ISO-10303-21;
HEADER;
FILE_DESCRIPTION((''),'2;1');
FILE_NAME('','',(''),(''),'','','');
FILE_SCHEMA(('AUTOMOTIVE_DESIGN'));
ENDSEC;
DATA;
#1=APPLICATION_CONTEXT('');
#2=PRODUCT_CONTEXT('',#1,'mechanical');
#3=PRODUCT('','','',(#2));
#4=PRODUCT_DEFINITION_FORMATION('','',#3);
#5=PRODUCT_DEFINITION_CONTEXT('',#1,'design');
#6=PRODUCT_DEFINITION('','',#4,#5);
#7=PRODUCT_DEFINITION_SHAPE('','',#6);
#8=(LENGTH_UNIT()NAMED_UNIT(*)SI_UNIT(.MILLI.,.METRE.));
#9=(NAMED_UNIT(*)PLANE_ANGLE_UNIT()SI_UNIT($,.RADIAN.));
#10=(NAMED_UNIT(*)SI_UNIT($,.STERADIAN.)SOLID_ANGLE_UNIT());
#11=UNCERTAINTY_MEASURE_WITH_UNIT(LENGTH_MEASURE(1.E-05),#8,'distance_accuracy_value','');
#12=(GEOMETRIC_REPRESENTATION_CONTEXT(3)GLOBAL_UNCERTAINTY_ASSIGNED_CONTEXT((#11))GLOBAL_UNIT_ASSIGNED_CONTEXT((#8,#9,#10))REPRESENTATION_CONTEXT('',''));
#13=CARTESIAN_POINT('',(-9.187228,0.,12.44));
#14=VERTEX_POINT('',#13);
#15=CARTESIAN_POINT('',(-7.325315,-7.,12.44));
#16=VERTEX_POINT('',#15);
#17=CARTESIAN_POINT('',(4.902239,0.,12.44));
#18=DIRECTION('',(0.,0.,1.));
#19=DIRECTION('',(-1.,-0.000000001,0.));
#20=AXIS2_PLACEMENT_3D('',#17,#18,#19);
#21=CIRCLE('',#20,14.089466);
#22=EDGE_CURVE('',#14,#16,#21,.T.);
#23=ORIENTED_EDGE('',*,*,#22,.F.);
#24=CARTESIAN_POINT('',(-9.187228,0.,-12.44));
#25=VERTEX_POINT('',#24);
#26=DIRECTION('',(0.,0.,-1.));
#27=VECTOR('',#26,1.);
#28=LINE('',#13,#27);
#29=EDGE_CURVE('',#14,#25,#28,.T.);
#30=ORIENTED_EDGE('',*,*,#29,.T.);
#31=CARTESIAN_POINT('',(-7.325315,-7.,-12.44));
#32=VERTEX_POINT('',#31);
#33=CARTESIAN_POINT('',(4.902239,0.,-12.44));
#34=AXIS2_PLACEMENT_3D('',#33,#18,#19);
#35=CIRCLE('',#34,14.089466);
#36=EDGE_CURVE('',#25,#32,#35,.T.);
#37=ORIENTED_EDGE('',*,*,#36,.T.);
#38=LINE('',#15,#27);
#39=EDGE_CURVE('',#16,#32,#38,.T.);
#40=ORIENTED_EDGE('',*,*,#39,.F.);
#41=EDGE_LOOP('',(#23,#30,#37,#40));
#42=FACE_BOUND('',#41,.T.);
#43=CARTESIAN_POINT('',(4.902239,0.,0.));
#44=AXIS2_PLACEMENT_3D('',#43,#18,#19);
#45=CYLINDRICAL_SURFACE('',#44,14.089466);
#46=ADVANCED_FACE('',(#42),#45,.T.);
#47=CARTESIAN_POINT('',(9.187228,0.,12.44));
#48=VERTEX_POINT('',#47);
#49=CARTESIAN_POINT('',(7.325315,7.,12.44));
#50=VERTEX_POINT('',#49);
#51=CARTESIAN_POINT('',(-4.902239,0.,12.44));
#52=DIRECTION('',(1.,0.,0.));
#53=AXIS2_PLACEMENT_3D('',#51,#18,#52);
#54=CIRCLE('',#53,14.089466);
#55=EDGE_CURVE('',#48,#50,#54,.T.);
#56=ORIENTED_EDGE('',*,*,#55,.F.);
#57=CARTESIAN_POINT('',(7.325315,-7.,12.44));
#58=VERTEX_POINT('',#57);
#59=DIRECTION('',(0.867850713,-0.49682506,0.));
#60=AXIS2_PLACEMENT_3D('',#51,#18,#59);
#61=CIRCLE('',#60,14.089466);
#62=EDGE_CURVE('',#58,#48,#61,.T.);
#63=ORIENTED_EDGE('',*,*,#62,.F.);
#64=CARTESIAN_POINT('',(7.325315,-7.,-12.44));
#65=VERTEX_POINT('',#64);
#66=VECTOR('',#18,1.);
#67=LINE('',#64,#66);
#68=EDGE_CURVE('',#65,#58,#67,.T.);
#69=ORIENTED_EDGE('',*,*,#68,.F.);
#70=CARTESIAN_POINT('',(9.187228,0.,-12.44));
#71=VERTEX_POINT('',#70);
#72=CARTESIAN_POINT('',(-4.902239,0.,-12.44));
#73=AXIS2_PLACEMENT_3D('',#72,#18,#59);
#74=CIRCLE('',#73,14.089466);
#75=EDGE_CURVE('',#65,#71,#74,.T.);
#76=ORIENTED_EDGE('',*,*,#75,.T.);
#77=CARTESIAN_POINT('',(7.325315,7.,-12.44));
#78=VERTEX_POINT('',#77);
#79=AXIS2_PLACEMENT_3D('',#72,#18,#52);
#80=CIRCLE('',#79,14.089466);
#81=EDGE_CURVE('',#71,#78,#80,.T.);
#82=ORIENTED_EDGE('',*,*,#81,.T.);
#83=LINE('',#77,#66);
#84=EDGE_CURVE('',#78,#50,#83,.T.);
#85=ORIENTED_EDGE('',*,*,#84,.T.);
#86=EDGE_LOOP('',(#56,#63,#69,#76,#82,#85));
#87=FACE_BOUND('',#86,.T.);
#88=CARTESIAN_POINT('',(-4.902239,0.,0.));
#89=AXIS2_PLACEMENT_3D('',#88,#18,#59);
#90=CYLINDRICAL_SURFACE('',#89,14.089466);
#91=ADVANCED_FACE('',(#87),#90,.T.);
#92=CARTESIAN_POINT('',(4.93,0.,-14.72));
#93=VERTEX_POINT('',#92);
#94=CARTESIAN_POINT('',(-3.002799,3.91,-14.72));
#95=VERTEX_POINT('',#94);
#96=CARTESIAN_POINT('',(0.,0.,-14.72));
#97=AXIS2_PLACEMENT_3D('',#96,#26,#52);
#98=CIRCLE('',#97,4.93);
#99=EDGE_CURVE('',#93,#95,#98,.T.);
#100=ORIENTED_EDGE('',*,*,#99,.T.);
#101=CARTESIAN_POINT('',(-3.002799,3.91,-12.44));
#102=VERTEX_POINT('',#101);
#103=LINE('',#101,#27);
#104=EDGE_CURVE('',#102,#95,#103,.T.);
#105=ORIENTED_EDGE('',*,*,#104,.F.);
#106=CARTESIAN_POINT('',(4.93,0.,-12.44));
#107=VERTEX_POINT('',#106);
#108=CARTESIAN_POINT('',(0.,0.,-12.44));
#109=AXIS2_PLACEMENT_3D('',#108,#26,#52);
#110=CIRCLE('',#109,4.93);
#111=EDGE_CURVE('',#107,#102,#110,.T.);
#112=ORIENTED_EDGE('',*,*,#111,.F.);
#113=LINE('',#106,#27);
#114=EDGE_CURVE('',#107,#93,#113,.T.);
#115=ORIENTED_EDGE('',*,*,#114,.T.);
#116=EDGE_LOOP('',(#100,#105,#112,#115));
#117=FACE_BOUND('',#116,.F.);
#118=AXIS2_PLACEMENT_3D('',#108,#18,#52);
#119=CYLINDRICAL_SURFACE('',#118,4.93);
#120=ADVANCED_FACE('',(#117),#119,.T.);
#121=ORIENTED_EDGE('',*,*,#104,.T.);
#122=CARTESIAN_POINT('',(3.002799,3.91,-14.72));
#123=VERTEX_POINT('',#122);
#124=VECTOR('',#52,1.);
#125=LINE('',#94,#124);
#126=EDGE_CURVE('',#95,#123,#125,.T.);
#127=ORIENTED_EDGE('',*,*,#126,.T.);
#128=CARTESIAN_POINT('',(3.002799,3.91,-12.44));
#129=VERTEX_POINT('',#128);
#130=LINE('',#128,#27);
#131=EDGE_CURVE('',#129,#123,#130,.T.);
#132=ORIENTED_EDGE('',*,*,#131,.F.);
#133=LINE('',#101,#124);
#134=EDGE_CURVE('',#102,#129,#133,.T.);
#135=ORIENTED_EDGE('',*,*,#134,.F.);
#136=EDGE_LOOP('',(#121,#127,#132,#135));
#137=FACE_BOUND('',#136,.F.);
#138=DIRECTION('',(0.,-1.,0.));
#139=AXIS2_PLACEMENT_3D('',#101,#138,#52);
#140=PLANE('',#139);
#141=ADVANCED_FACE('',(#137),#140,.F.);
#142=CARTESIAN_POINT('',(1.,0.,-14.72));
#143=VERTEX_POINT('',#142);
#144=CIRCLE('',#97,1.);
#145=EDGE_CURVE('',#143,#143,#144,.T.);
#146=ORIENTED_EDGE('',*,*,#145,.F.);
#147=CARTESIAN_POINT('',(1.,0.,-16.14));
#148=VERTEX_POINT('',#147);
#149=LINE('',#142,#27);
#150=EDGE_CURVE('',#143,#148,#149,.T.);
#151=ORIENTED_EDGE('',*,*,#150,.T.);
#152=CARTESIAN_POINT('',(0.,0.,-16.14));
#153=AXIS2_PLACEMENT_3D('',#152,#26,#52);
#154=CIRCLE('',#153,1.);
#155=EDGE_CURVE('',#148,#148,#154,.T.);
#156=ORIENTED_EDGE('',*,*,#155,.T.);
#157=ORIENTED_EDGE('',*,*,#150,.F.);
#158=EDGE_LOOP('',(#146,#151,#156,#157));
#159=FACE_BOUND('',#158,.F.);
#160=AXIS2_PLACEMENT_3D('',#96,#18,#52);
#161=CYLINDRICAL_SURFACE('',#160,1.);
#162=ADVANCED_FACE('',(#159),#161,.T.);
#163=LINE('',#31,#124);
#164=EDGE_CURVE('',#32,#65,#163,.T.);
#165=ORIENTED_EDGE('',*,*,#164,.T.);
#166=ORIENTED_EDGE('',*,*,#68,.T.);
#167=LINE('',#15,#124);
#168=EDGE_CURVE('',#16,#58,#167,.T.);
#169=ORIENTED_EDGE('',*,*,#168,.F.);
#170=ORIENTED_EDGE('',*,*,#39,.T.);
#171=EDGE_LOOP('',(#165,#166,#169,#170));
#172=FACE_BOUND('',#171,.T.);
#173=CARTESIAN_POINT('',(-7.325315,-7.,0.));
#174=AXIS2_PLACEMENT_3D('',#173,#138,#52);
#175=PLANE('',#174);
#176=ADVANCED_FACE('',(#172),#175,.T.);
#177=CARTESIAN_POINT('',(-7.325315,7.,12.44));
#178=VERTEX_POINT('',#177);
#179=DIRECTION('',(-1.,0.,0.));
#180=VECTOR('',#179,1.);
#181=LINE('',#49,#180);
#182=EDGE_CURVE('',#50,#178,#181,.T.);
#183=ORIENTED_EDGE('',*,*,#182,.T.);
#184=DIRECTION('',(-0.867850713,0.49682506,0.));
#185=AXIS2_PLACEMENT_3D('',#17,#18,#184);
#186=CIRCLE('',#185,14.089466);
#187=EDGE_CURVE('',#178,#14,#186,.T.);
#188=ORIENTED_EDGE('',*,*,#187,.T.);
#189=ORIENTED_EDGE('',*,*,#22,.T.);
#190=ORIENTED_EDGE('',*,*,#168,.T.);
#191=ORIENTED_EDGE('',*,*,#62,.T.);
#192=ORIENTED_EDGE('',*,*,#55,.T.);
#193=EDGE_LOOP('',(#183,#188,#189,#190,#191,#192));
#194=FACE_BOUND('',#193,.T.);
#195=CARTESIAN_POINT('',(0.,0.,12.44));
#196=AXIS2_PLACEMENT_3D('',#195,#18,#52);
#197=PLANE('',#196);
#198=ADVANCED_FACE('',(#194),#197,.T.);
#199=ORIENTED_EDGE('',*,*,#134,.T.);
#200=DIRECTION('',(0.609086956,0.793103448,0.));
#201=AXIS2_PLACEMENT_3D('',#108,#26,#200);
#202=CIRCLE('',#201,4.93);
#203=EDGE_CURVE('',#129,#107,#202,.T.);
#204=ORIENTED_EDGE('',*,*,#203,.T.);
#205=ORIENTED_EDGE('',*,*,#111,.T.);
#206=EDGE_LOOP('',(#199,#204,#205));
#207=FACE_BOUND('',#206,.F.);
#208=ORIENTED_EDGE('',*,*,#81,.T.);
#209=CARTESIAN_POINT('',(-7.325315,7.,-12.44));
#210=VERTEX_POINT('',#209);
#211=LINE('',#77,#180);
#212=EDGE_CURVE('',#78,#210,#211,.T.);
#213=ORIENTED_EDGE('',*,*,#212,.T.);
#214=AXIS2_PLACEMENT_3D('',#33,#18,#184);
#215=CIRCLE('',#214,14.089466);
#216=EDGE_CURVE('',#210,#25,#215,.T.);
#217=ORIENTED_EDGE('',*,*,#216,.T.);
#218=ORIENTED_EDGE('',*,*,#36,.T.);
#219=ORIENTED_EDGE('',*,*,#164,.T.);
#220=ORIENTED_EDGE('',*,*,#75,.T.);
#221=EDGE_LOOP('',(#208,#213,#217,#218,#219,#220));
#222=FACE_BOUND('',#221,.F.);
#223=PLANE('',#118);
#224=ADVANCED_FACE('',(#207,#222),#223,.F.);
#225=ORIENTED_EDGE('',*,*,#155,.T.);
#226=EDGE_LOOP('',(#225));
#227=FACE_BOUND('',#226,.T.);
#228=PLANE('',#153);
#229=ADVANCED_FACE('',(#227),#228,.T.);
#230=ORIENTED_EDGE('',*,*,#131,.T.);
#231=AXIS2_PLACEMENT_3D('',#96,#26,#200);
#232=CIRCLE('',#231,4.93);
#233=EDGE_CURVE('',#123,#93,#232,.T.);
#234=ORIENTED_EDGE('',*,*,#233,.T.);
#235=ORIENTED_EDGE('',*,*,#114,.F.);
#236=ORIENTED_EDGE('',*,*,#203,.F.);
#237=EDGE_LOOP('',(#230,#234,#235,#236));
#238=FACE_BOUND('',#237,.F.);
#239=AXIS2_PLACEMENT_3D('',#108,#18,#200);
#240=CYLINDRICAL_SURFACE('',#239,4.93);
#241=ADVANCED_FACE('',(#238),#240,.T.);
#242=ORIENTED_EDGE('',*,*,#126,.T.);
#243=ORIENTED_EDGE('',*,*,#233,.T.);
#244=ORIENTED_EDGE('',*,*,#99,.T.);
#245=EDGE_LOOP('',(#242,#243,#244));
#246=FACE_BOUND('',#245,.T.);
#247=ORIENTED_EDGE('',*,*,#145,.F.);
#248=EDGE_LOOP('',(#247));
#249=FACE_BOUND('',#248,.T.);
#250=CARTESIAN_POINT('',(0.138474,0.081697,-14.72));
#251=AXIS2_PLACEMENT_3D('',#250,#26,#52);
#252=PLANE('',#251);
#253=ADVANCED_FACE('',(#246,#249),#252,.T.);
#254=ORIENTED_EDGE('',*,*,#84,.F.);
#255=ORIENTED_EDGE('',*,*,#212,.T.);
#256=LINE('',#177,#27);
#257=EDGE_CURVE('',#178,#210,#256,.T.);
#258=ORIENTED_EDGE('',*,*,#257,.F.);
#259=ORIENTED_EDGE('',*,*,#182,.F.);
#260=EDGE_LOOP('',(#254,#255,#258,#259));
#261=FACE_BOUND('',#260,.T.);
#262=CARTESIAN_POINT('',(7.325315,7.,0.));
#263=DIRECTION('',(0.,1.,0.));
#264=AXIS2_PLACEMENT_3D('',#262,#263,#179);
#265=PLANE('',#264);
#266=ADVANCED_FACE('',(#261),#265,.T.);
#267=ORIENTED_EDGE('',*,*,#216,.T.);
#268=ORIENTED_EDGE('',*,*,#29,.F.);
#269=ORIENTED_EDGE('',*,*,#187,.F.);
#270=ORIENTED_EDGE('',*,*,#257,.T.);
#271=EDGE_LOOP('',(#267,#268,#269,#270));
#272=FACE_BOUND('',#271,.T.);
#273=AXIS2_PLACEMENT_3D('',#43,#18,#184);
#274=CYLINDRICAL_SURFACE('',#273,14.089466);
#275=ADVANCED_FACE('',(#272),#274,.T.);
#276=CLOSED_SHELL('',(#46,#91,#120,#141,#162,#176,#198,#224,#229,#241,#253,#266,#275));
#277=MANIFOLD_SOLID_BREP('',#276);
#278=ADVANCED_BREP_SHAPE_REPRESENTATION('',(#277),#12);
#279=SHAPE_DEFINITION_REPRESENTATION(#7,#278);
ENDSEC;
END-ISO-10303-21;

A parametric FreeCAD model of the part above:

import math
import FreeCAD as App
import Part
import Sketcher
from FreeCAD import Vector
Q = App.Units.Quantity

doc = App.newDocument("Part")
body = doc.addObject("PartDesign::Body", "Body")

# Sketch on XY plane
sketch1 = doc.addObject("Sketcher::SketchObject", "Sketch")
body.addObject(sketch1)
sketch1.AttachmentSupport = (doc.XY_Plane, [""])
sketch1.MapMode = "FlatFace"
sketch1.addGeometry(Part.LineSegment(Vector(-7, -7, 0), Vector(7, -7, 0)), False)
sketch1.addGeometry(Part.ArcOfCircle(Part.Circle(Vector(-5, 0, 0), Vector(0, 0, 1), 14), math.radians(-30), math.radians(0)), False)
sketch1.addGeometry(Part.ArcOfCircle(Part.Circle(Vector(-5, 0, 0), Vector(0, 0, 1), 14), math.radians(0), math.radians(30)), False)
sketch1.addGeometry(Part.LineSegment(Vector(7, 7, 0), Vector(-7, 7, 0)), False)
sketch1.addGeometry(Part.ArcOfCircle(Part.Circle(Vector(5, 0, 0), Vector(0, 0, 1), 14), math.radians(150), math.radians(180)), False)
sketch1.addGeometry(Part.ArcOfCircle(Part.Circle(Vector(5, 0, 0), Vector(0, 0, 1), 14), math.radians(-180), math.radians(-150)), False)
sketch1.addConstraint(Sketcher.Constraint("Coincident", 0, 2, 1, 1))
sketch1.addConstraint(Sketcher.Constraint("Tangent", 1, 2, 2, 1))
sketch1.addConstraint(Sketcher.Constraint("Coincident", 2, 2, 3, 1))
sketch1.addConstraint(Sketcher.Constraint("Coincident", 3, 2, 4, 1))
sketch1.addConstraint(Sketcher.Constraint("Tangent", 4, 2, 5, 1))
sketch1.addConstraint(Sketcher.Constraint("Coincident", 5, 2, 0, 1))
sketch1.addConstraint(Sketcher.Constraint("Horizontal", 0))
sketch1.addConstraint(Sketcher.Constraint("Horizontal", 3))
sketch1.addConstraint(Sketcher.Constraint("Equal", 1, 2))
sketch1.addConstraint(Sketcher.Constraint("Equal", 2, 4))
sketch1.addConstraint(Sketcher.Constraint("Equal", 4, 5))
sketch1.addConstraint(Sketcher.Constraint("Symmetric", 1, 3, 4, 3, -1, 1))
sketch1.addConstraint(Sketcher.Constraint("Symmetric", 0, 2, 2, 2, -1))
sketch1.addConstraint(Sketcher.Constraint("PointOnObject", 1, 2, -1))
sketch1.addConstraint(Sketcher.Constraint("PointOnObject", 4, 2, -1))
sketch1.addConstraint(Sketcher.Constraint("DistanceY", 0, 2, -1, 1, Q("7 mm")))
sketch1.addConstraint(Sketcher.Constraint("Radius", 1, Q("14.089466 mm")))
sketch1.addConstraint(Sketcher.Constraint("DistanceX", 0, 1, 0, 2, Q("14.65063 mm")))
pad1 = doc.addObject("PartDesign::Pad", "Pad")
body.addObject(pad1)
pad1.Profile = sketch1
pad1.Length = 24.88
pad1.Midplane = True

# Sketch on XY plane
sketch2 = doc.addObject("Sketcher::SketchObject", "Sketch001")
body.addObject(sketch2)
sketch2.AttachmentSupport = (doc.XY_Plane, [""])
sketch2.MapMode = "FlatFace"
sketch2.AttachmentOffset = App.Placement(Vector(0, 0, -12.44), App.Rotation())
sketch2.addGeometry(Part.ArcOfCircle(Part.Circle(Vector(0, 0, 0), Vector(0, 0, 1), 4.9), math.radians(0), math.radians(52)), False)
sketch2.addGeometry(Part.ArcOfCircle(Part.Circle(Vector(0, 0, 0), Vector(0, 0, 1), 4.9), math.radians(128), math.radians(360)), False)
sketch2.addGeometry(Part.LineSegment(Vector(-3, 3.9, 0), Vector(3, 3.9, 0)), False)
sketch2.addConstraint(Sketcher.Constraint("Tangent", 0, 1, 1, 2))
sketch2.addConstraint(Sketcher.Constraint("Coincident", 1, 1, 2, 1))
sketch2.addConstraint(Sketcher.Constraint("Coincident", 2, 2, 0, 2))
sketch2.addConstraint(Sketcher.Constraint("Horizontal", 2))
sketch2.addConstraint(Sketcher.Constraint("Coincident", 0, 3, -1, 1))
sketch2.addConstraint(Sketcher.Constraint("Equal", 0, 1))
sketch2.addConstraint(Sketcher.Constraint("PointOnObject", 0, 1, -1))
sketch2.addConstraint(Sketcher.Constraint("Radius", 0, Q("4.93 mm")))
sketch2.addConstraint(Sketcher.Constraint("DistanceY", -1, 1, 1, 1, Q("3.91 mm")))
pad2 = doc.addObject("PartDesign::Pad", "Pad001")
body.addObject(pad2)
pad2.Profile = sketch2
pad2.Length = 2.28
pad2.Reversed = True

# Sketch on XY plane
sketch3 = doc.addObject("Sketcher::SketchObject", "Sketch002")
body.addObject(sketch3)
sketch3.AttachmentSupport = (doc.XY_Plane, [""])
sketch3.MapMode = "FlatFace"
sketch3.AttachmentOffset = App.Placement(Vector(0, 0, -14.72), App.Rotation())
sketch3.addGeometry(Part.Circle(Vector(0, 0, 0), Vector(0, 0, 1), 1), False)
sketch3.addConstraint(Sketcher.Constraint("Coincident", 0, 3, -1, 1))
sketch3.addConstraint(Sketcher.Constraint("Diameter", 0, Q("2 mm")))
pad3 = doc.addObject("PartDesign::Pad", "Pad002")
body.addObject(pad3)
pad3.Profile = sketch3
pad3.Length = 1.42
pad3.Reversed = True

doc.recompute()
